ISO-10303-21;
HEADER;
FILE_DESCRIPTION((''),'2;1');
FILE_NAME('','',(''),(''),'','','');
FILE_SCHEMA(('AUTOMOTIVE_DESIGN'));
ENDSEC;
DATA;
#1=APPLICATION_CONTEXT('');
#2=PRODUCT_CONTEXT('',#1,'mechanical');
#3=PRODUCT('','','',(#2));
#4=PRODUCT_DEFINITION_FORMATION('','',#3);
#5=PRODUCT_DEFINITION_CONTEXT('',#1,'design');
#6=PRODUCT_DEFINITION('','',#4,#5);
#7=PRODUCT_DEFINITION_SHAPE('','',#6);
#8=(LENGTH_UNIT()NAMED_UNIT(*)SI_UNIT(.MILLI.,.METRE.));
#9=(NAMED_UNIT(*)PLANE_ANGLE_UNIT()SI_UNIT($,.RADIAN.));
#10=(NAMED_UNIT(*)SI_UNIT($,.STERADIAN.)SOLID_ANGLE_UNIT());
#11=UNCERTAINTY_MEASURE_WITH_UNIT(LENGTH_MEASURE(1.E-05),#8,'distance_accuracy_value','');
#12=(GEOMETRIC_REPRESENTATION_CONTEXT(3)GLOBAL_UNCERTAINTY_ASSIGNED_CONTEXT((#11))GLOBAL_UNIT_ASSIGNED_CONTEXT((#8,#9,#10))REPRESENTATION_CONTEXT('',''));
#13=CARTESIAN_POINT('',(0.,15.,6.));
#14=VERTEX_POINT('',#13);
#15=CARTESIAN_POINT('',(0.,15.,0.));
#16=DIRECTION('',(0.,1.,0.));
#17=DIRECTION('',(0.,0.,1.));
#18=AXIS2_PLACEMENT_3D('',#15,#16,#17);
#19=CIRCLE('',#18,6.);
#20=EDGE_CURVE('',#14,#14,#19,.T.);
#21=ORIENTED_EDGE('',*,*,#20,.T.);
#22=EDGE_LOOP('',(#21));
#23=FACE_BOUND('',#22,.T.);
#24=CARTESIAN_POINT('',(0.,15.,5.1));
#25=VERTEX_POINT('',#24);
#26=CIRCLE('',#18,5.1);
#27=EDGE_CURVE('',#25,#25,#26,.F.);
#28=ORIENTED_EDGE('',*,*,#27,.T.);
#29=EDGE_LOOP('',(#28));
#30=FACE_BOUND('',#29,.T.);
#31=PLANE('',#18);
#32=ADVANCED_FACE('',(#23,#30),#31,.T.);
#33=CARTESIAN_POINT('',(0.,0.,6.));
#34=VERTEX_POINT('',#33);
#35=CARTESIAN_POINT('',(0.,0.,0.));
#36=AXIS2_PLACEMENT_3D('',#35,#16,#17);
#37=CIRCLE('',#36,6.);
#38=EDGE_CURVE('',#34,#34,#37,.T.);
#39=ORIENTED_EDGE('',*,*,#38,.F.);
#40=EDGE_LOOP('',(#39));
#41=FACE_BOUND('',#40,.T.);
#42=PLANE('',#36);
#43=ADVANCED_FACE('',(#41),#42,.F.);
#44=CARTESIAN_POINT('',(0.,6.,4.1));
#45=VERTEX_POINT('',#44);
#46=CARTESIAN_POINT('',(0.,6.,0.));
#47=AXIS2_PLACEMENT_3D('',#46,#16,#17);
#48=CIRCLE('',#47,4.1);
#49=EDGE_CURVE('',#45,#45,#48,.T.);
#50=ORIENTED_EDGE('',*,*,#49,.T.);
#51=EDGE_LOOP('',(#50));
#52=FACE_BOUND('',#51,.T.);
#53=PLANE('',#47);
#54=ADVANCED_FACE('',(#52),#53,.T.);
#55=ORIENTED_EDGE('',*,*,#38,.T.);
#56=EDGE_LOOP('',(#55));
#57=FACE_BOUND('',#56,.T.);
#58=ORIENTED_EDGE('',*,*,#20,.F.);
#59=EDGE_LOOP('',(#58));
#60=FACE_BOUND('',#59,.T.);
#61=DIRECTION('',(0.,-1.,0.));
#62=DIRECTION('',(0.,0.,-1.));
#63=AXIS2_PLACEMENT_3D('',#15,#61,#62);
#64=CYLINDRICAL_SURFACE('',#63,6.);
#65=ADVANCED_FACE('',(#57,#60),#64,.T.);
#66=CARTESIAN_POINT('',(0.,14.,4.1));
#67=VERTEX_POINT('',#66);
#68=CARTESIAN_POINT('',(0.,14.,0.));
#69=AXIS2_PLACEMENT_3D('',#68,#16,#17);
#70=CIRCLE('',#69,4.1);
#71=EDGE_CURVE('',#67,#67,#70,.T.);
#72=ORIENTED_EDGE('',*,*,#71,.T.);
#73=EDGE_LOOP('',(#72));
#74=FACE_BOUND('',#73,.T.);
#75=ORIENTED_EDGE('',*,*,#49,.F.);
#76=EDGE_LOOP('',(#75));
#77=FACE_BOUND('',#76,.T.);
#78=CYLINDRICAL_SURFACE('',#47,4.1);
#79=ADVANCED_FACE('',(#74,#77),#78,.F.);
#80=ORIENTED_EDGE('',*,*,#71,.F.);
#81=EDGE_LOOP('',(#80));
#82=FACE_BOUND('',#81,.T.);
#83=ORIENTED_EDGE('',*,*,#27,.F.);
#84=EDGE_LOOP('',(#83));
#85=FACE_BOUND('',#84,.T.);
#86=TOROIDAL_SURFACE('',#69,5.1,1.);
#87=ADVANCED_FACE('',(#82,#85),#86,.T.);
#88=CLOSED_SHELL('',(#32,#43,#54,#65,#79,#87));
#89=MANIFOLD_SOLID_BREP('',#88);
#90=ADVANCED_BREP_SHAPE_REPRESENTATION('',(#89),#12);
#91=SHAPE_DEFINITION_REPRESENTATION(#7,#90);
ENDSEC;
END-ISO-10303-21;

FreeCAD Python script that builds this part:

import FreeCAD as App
import Part
import Sketcher
from FreeCAD import Vector


def edges_at(feature, points):
    """Names of the edges that pass closest to the given points."""
    edges = feature.Shape.Edges
    near = lambda p: min(range(len(edges)), key=lambda i: edges[i].distToShape(Part.Vertex(*p))[0])
    return sorted({f"Edge{near(p) + 1}" for p in points})

doc = App.newDocument("Part")
body = doc.addObject("PartDesign::Body", "Body")

# Sketch on XZ plane
sketch1 = body.newObject("Sketcher::SketchObject", "Sketch")
sketch1.AttachmentSupport = (doc.getObject("XZ_Plane"), [""])
sketch1.MapMode = "FlatFace"
sketch1.addGeometry(Part.Circle(Vector(0, 0, 0), Vector(0, 0, 1), 6), False)
sketch1.addConstraint(Sketcher.Constraint("Coincident", 0, 3, -1, 1))
sketch1.addConstraint(Sketcher.Constraint("Diameter", 0, 12.0))
pad1 = body.newObject("PartDesign::Pad", "Pad")
pad1.Profile = sketch1
pad1.Length = 15
pad1.Reversed = True

# Sketch on XZ plane
sketch2 = body.newObject("Sketcher::SketchObject", "Sketch001")
sketch2.AttachmentSupport = (doc.getObject("XZ_Plane"), [""])
sketch2.MapMode = "FlatFace"
sketch2.AttachmentOffset = App.Placement(Vector(0, 0, -15), App.Rotation())
sketch2.addGeometry(Part.Circle(Vector(0, 0, 0), Vector(0, 0, 1), 4.1), False)
sketch2.addConstraint(Sketcher.Constraint("Coincident", 0, 3, -1, 1))
sketch2.addConstraint(Sketcher.Constraint("Diameter", 0, 8.2))
pocket1 = body.newObject("PartDesign::Pocket", "Pocket")
pocket1.Profile = sketch2
pocket1.Length = 9
pocket1.Reversed = True
doc.recompute()

fillet = body.newObject("PartDesign::Fillet", "Fillet")
fillet.Base = (pocket1, edges_at(pocket1, [(0, 15, -4.1)]))
fillet.Radius = 1

doc.recompute()
